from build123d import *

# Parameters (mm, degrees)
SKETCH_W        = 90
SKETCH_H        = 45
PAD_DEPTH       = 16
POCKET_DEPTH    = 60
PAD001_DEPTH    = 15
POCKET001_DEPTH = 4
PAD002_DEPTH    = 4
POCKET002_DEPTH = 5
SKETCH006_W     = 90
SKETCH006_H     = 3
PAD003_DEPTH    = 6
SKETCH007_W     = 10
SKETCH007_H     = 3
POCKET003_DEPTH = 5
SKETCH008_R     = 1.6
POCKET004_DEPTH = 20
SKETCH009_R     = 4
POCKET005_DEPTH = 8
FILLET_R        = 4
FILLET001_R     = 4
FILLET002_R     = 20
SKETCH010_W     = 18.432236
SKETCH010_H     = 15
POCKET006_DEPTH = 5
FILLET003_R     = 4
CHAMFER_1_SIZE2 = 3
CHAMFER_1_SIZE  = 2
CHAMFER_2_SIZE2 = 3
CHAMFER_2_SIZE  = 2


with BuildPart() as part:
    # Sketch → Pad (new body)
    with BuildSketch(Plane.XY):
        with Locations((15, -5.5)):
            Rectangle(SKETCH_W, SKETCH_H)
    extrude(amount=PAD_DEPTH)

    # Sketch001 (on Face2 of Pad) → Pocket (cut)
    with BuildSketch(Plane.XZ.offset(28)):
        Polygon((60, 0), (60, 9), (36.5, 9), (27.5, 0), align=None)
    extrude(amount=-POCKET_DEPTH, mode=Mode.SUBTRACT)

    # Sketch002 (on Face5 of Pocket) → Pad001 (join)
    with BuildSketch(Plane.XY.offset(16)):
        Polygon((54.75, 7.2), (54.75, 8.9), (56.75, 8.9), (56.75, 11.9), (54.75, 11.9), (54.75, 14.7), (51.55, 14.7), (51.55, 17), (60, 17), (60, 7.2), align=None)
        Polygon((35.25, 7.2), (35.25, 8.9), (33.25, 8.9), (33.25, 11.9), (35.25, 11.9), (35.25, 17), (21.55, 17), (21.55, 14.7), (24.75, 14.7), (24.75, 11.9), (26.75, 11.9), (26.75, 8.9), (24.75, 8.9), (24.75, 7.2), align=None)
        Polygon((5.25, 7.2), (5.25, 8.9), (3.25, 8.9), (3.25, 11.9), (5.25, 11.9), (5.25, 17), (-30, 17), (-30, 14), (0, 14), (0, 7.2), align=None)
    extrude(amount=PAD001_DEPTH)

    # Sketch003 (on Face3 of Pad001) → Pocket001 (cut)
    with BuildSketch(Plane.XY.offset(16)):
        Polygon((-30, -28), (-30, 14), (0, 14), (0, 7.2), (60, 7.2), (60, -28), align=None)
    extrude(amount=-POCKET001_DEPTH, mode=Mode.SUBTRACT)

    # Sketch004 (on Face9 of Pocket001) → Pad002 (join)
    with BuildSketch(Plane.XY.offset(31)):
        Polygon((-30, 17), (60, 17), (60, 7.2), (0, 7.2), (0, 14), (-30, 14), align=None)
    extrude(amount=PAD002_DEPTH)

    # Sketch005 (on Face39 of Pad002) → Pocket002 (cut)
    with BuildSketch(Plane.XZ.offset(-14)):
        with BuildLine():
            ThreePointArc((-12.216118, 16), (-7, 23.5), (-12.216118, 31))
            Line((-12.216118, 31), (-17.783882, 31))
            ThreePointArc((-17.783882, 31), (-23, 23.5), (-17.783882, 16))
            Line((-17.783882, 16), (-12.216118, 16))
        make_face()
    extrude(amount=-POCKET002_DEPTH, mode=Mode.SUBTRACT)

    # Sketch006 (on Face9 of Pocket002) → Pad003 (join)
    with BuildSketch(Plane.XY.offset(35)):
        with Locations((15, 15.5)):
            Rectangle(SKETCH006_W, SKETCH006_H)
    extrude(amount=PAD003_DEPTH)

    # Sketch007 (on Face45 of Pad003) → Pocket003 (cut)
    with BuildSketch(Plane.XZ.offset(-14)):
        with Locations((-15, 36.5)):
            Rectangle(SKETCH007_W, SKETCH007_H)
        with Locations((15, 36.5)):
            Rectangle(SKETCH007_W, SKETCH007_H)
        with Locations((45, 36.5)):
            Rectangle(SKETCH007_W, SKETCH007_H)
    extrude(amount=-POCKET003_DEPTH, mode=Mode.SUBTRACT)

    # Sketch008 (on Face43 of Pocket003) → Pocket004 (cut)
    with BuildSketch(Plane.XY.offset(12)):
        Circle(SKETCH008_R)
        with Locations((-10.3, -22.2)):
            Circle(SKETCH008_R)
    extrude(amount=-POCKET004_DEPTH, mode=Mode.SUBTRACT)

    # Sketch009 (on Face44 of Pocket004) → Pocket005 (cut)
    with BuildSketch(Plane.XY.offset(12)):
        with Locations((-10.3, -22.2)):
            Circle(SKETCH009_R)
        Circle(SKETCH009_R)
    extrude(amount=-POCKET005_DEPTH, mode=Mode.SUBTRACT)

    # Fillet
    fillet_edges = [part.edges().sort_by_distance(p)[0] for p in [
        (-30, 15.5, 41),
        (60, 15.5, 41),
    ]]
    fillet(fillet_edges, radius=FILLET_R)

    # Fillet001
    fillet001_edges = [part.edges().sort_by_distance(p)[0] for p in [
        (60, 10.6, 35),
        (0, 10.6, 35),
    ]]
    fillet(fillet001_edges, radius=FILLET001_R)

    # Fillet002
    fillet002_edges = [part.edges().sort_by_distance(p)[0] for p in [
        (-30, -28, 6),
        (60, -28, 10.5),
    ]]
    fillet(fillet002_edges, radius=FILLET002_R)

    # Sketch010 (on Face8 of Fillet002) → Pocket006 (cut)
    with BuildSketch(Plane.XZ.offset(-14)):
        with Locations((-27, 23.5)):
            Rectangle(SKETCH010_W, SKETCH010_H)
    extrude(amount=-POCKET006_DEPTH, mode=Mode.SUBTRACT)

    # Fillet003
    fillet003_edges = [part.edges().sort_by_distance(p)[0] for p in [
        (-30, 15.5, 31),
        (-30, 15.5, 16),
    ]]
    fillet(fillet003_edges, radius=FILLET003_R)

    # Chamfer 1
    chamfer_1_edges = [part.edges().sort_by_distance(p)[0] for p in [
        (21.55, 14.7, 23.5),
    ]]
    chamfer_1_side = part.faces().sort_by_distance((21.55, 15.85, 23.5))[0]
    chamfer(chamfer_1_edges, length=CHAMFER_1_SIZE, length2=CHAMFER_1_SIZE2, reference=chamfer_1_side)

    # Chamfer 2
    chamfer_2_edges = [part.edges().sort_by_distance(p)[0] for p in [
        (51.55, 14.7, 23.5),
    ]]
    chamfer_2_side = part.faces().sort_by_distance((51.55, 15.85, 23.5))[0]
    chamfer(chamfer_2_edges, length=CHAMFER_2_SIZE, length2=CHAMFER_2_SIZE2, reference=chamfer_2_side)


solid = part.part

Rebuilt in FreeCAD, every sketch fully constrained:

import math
import FreeCAD as App
import Part
import Sketcher

V = App.Vector
Q = App.Units.Quantity


def edges_at(feature, points):
    """Names of the edges that pass closest to the given points."""
    edges = feature.Shape.Edges
    near = lambda p: min(range(len(edges)), key=lambda i: edges[i].distToShape(Part.Vertex(*p))[0])
    return sorted({f"Edge{near(p) + 1}" for p in points})

doc = App.newDocument("Part")
params = doc.addObject("Spreadsheet::Sheet", "Params")
for row, (alias, value) in enumerate([
    ("sketch1_width", "90 mm"),
    ("sketch1_height", "45 mm"),
    ("pad1_length", "16 mm"),
    ("sketch2_height", "9 mm"),
    ("sketch2_width", "23.5 mm"),
    ("pocket1_length", "60 mm"),
    ("sketch3_width", "2 mm"),
    ("sketch3_width2", "30 mm"),
    ("sketch3_height", "3 mm"),
    ("sketch3_width3", "3.2 mm"),
    ("sketch3_width4", "13.7 mm"),
    ("pad2_length", "15 mm"),
    ("sketch4_width", "90 mm"),
    ("sketch4_width2", "60 mm"),
    ("sketch4_height", "42 mm"),
    ("sketch4_height2", "35.2 mm"),
    ("pocket2_length", "4 mm"),
    ("sketch5_width", "90 mm"),
    ("sketch5_width2", "30 mm"),
    ("sketch5_height", "3 mm"),
    ("sketch5_height2", "6.8 mm"),
    ("pad3_length", "4 mm"),
    ("sketch6_radius", "8 mm"),
    ("pocket3_length", "5 mm"),
    ("sketch7_width", "90 mm"),
    ("sketch7_height", "3 mm"),
    ("pad4_length", "6 mm"),
    ("sketch8_width", "10 mm"),
    ("sketch8_height", "3 mm"),
    ("pocket4_length", "5 mm"),
    ("sketch9_diameter", "3.2 mm"),
    ("pocket5_length", "20 mm"),
    ("sketch10_diameter", "8 mm"),
    ("pocket6_length", "8 mm"),
    ("fillet_radius", "4 mm"),
    ("fillet2_radius", "4 mm"),
    ("fillet3_radius", "20 mm"),
    ("sketch11_height", "15 mm"),
    ("pocket7_length", "5 mm"),
    ("fillet4_radius", "4 mm"),
    ("chamfer_size", "2 mm"),
    ("chamfer_size2", "3 mm"),
    ("chamfer2_size", "2 mm"),
    ("chamfer2_size2", "3 mm"),
], start=1):
    params.set(f"A{row}", alias)
    params.set(f"B{row}", "=" + value)
    params.setAlias(f"B{row}", alias)

body = doc.addObject("PartDesign::Body", "Body")

sketch1 = doc.addObject("Sketcher::SketchObject", "Sketch")
body.addObject(sketch1)
sketch1.AttachmentSupport = (doc.XY_Plane, [""])
sketch1.MapMode = "FlatFace"
sketch1.addGeometry([
    Part.LineSegment(V(-30, 17, 0), V(-30, -28, 0)),
    Part.LineSegment(V(-30, -28, 0), V(60, -28, 0)),
    Part.LineSegment(V(60, -28, 0), V(60, 17, 0)),
    Part.LineSegment(V(60, 17, 0), V(-30, 17, 0)),
], False)
sketch1.addConstraint([
    Sketcher.Constraint("Coincident", 0, 2, 1, 1),
    Sketcher.Constraint("Coincident", 1, 2, 2, 1),
    Sketcher.Constraint("Coincident", 2, 2, 3, 1),
    Sketcher.Constraint("Coincident", 3, 2, 0, 1),
    Sketcher.Constraint("Vertical", 0),
    Sketcher.Constraint("Horizontal", 1),
    Sketcher.Constraint("Vertical", 2),
    Sketcher.Constraint("Horizontal", 3),
    Sketcher.Constraint("DistanceX", 1, 1, 1, 2, Q("90 mm")),
    Sketcher.Constraint("DistanceY", 0, 2, 0, 1, Q("45 mm")),
    Sketcher.Constraint("DistanceX", 0, 2, -1, 1, Q("30 mm")),
    Sketcher.Constraint("DistanceY", 0, 2, -1, 1, Q("28 mm")),
])
sketch1.setExpression("Constraints[8]", "Params.sketch1_width")
sketch1.setExpression("Constraints[9]", "Params.sketch1_height")
pad1 = doc.addObject("PartDesign::Pad", "Pad")
body.addObject(pad1)
pad1.Profile = sketch1
pad1.setExpression("Length", "Params.pad1_length")

sketch2 = doc.addObject("Sketcher::SketchObject", "Sketch001")
body.addObject(sketch2)
sketch2.AttachmentSupport = (doc.XZ_Plane, [""])
sketch2.MapMode = "FlatFace"
sketch2.AttachmentOffset = App.Placement(V(0, 0, 28), App.Rotation())
sketch2.addGeometry([
    Part.LineSegment(V(60, 0, 0), V(60, 9, 0)),
    Part.LineSegment(V(60, 9, 0), V(36, 9, 0)),
    Part.LineSegment(V(36, 9, 0), V(28, 0, 0)),
    Part.LineSegment(V(28, 0, 0), V(60, 0, 0)),
], False)
sketch2.addConstraint([
    Sketcher.Constraint("Coincident", 0, 2, 1, 1),
    Sketcher.Constraint("Coincident", 1, 2, 2, 1),
    Sketcher.Constraint("Coincident", 2, 2, 3, 1),
    Sketcher.Constraint("Coincident", 3, 2, 0, 1),
    Sketcher.Constraint("Vertical", 0),
    Sketcher.Constraint("Horizontal", 1),
    Sketcher.Constraint("Horizontal", 3),
    Sketcher.Constraint("PointOnObject", 2, 2, -1),
    Sketcher.Constraint("DistanceY", 0, 1, 0, 2, Q("9 mm")),
    Sketcher.Constraint("Angle", 2, Q("-135 deg")),
    Sketcher.Constraint("DistanceX", 1, 2, 1, 1, Q("23.5 mm")),
    Sketcher.Constraint("DistanceX", -1, 1, 0, 2, Q("60 mm")),
])
sketch2.setExpression("Constraints[8]", "Params.sketch2_height")
sketch2.setExpression("Constraints[10]", "Params.sketch2_width")
pocket1 = doc.addObject("PartDesign::Pocket", "Pocket")
body.addObject(pocket1)
pocket1.Profile = sketch2
pocket1.setExpression("Length", "Params.pocket1_length")

sketch3 = doc.addObject("Sketcher::SketchObject", "Sketch002")
body.addObject(sketch3)
sketch3.AttachmentSupport = (doc.XY_Plane, [""])
sketch3.MapMode = "FlatFace"
sketch3.AttachmentOffset = App.Placement(V(0, 0, 16), App.Rotation())
sketch3.addGeometry([
    Part.LineSegment(V(54.8, 8.9, 0), V(54.8, 7.2, 0)),
    Part.LineSegment(V(54.8, 7.2, 0), V(60, 7.2, 0)),
    Part.LineSegment(V(60, 7.2, 0), V(60, 17, 0)),
    Part.LineSegment(V(60, 17, 0), V(51.5, 17, 0)),
    Part.LineSegment(V(51.5, 17, 0), V(51.5, 14.7, 0)),
    Part.LineSegment(V(51.5, 14.7, 0), V(54.8, 14.7, 0)),
    Part.LineSegment(V(54.8, 14.7, 0), V(54.8, 11.9, 0)),
    Part.LineSegment(V(54.8, 11.9, 0), V(56.8, 11.9, 0)),
    Part.LineSegment(V(56.8, 11.9, 0), V(56.8, 8.9, 0)),
    Part.LineSegment(V(56.8, 8.9, 0), V(54.8, 8.9, 0)),
    Part.LineSegment(V(35.2, 7.2, 0), V(35.2, 8.9, 0)),
    Part.LineSegment(V(35.2, 8.9, 0), V(33.2, 8.9, 0)),
    Part.LineSegment(V(33.2, 8.9, 0), V(33.2, 11.9, 0)),
    Part.LineSegment(V(33.2, 11.9, 0), V(35.2, 11.9, 0)),
    Part.LineSegment(V(35.2, 11.9, 0), V(35.2, 17, 0)),
    Part.LineSegment(V(35.2, 17, 0), V(21.6, 17, 0)),
    Part.LineSegment(V(21.6, 17, 0), V(21.6, 14.7, 0)),
    Part.LineSegment(V(21.6, 14.7, 0), V(24.8, 14.7, 0)),
    Part.LineSegment(V(24.8, 14.7, 0), V(24.8, 11.9, 0)),
    Part.LineSegment(V(24.8, 11.9, 0), V(26.8, 11.9, 0)),
    Part.LineSegment(V(26.8, 11.9, 0), V(26.8, 8.9, 0)),
    Part.LineSegment(V(26.8, 8.9, 0), V(24.8, 8.9, 0)),
    Part.LineSegment(V(24.8, 8.9, 0), V(24.8, 7.2, 0)),
    Part.LineSegment(V(24.8, 7.2, 0), V(35.2, 7.2, 0)),
    Part.LineSegment(V(5.2, 7.2, 0), V(5.2, 8.9, 0)),
    Part.LineSegment(V(5.2, 8.9, 0), V(3.2, 8.9, 0)),
    Part.LineSegment(V(3.2, 8.9, 0), V(3.2, 11.9, 0)),
    Part.LineSegment(V(3.2, 11.9, 0), V(5.2, 11.9, 0)),
    Part.LineSegment(V(5.2, 11.9, 0), V(5.2, 17, 0)),
    Part.LineSegment(V(5.2, 17, 0), V(-30, 17, 0)),
    Part.LineSegment(V(-30, 17, 0), V(-30, 14, 0)),
    Part.LineSegment(V(-30, 14, 0), V(0, 14, 0)),
    Part.LineSegment(V(0, 14, 0), V(0, 7.2, 0)),
    Part.LineSegment(V(0, 7.2, 0), V(5.2, 7.2, 0)),
], False)
sketch3.addConstraint([
    Sketcher.Constraint("Coincident", 0, 2, 1, 1),
    Sketcher.Constraint("Coincident", 1, 2, 2, 1),
    Sketcher.Constraint("Coincident", 2, 2, 3, 1),
    Sketcher.Constraint("Coincident", 3, 2, 4, 1),
    Sketcher.Constraint("Coincident", 4, 2, 5, 1),
    Sketcher.Constraint("Coincident", 5, 2, 6, 1),
    Sketcher.Constraint("Coincident", 6, 2, 7, 1),
    Sketcher.Constraint("Coincident", 7, 2, 8, 1),
    Sketcher.Constraint("Coincident", 8, 2, 9, 1),
    Sketcher.Constraint("Coincident", 9, 2, 0, 1),
    Sketcher.Constraint("Coincident", 10, 2, 11, 1),
    Sketcher.Constraint("Coincident", 11, 2, 12, 1),
    Sketcher.Constraint("Coincident", 12, 2, 13, 1),
    Sketcher.Constraint("Coincident", 13, 2, 14, 1),
    Sketcher.Constraint("Coincident", 14, 2, 15, 1),
    Sketcher.Constraint("Coincident", 15, 2, 16, 1),
    Sketcher.Constraint("Coincident", 16, 2, 17, 1),
    Sketcher.Constraint("Coincident", 17, 2, 18, 1),
    Sketcher.Constraint("Coincident", 18, 2, 19, 1),
    Sketcher.Constraint("Coincident", 19, 2, 20, 1),
    Sketcher.Constraint("Coincident", 20, 2, 21, 1),
    Sketcher.Constraint("Coincident", 21, 2, 22, 1),
    Sketcher.Constraint("Coincident", 22, 2, 23, 1),
    Sketcher.Constraint("Coincident", 23, 2, 10, 1),
    Sketcher.Constraint("Coincident", 24, 2, 25, 1),
    Sketcher.Constraint("Coincident", 25, 2, 26, 1),
    Sketcher.Constraint("Coincident", 26, 2, 27, 1),
    Sketcher.Constraint("Coincident", 27, 2, 28, 1),
    Sketcher.Constraint("Coincident", 28, 2, 29, 1),
    Sketcher.Constraint("Coincident", 29, 2, 30, 1),
    Sketcher.Constraint("Coincident", 30, 2, 31, 1),
    Sketcher.Constraint("Coincident", 31, 2, 32, 1),
    Sketcher.Constraint("Coincident", 32, 2, 33, 1),
    Sketcher.Constraint("Coincident", 33, 2, 24, 1),
    Sketcher.Constraint("Vertical", 0),
    Sketcher.Constraint("Horizontal", 1),
    Sketcher.Constraint("Vertical", 2),
    Sketcher.Constraint("Horizontal", 3),
    Sketcher.Constraint("Vertical", 4),
    Sketcher.Constraint("Horizontal", 5),
    Sketcher.Constraint("Vertical", 6),
    Sketcher.Constraint("Horizontal", 7),
    Sketcher.Constraint("Vertical", 8),
    Sketcher.Constraint("Horizontal", 9),
    Sketcher.Constraint("Vertical", 10),
    Sketcher.Constraint("Horizontal", 11),
    Sketcher.Constraint("Vertical", 12),
    Sketcher.Constraint("Horizontal", 13),
    Sketcher.Constraint("Vertical", 14),
    Sketcher.Constraint("Horizontal", 15),
    Sketcher.Constraint("Vertical", 16),
    Sketcher.Constraint("Horizontal", 17),
    Sketcher.Constraint("Vertical", 18),
    Sketcher.Constraint("Horizontal", 19),
    Sketcher.Constraint("Vertical", 20),
    Sketcher.Constraint("Horizontal", 21),
    Sketcher.Constraint("Vertical", 22),
    Sketcher.Constraint("Horizontal", 23),
    Sketcher.Constraint("Vertical", 24),
    Sketcher.Constraint("Horizontal", 25),
    Sketcher.Constraint("Vertical", 26),
    Sketcher.Constraint("Horizontal", 27),
    Sketcher.Constraint("Vertical", 28),
    Sketcher.Constraint("Horizontal", 29),
    Sketcher.Constraint("Vertical", 30),
    Sketcher.Constraint("Horizontal", 31),
    Sketcher.Constraint("Vertical", 32),
    Sketcher.Constraint("Horizontal", 33),
    Sketcher.Constraint("PointOnObject", 31, 2, -2),
    Sketcher.Constraint("Horizontal", 9, 2, 10, 2),
    Sketcher.Constraint("Horizontal", 7, 2, 12, 2),
    Sketcher.Constraint("Horizontal", 3, 2, 14, 2),
    Sketcher.Constraint("Horizontal", 5, 2, 16, 2),
    Sketcher.Constraint("Horizontal", 13, 2, 18, 2),
    Sketcher.Constraint("Horizontal", 11, 2, 20, 2),
    Sketcher.Constraint("Horizontal", 1, 2, 22, 2),
    Sketcher.Constraint("Horizontal", 21, 2, 24, 2),
    Sketcher.Constraint("Horizontal", 19, 2, 26, 2),
    Sketcher.Constraint("Horizontal", 15, 2, 28, 2),
    Sketcher.Constraint("Horizontal", 23, 2, 32, 2),
    Sketcher.Constraint("Vertical", 0, 2, 5, 2),
    Sketcher.Constraint("Vertical", 10, 2, 13, 2),
    Sketcher.Constraint("Vertical", 18, 2, 21, 2),
    Sketcher.Constraint("Vertical", 24, 2, 27, 2),
    Sketcher.Constraint("Equal", 9, 11),
    Sketcher.Constraint("Equal", 5, 17),
    Sketcher.Constraint("Equal", 13, 19),
    Sketcher.Constraint("Equal", 21, 25),
    Sketcher.Constraint("Equal", 1, 33),
    Sketcher.Constraint("Equal", 26, 30),
    Sketcher.Constraint("DistanceX", 7, 1, 7, 2, Q("2 mm")),
    Sketcher.Constraint("DistanceX", 31, 1, 31, 2, Q("30 mm")),
    Sketcher.Constraint("DistanceY", 8, 2, 8, 1, Q("3 mm")),
    Sketcher.Constraint("DistanceX", 5, 1, 5, 2, Q("3.2 mm")),
    Sketcher.Constraint("DistanceX", 15, 2, 15, 1, Q("13.7 mm")),
    Sketcher.Constraint("DistanceY", 0, 2, 0, 1, Q("1.7 mm")),
    Sketcher.Constraint("DistanceY", 2, 1, 2, 2, Q("9.8 mm")),
    Sketcher.Constraint("DistanceY", 4, 2, 4, 1, Q("2.3 mm")),
    Sketcher.Constraint("DistanceX", -1, 1, 1, 2, Q("60 mm")),
    Sketcher.Constraint("DistanceY", -1, 1, 2, 2, Q("17 mm")),
    Sketcher.Constraint("DistanceX", 1, 1, 1, 2, Q("5.25 mm")),
    Sketcher.Constraint("DistanceX", 10, 2, 4, 2, Q("16.3 mm")),
])
sketch3.setExpression("Constraints[90]", "Params.sketch3_width")
sketch3.setExpression("Constraints[91]", "Params.sketch3_width2")
sketch3.setExpression("Constraints[92]", "Params.sketch3_height")
sketch3.setExpression("Constraints[93]", "Params.sketch3_width3")
sketch3.setExpression("Constraints[94]", "Params.sketch3_width4")
pad2 = doc.addObject("PartDesign::Pad", "Pad001")
body.addObject(pad2)
pad2.Profile = sketch3
pad2.setExpression("Length", "Params.pad2_length")

sketch4 = doc.addObject("Sketcher::SketchObject", "Sketch003")
body.addObject(sketch4)
sketch4.AttachmentSupport = (doc.XY_Plane, [""])
sketch4.MapMode = "FlatFace"
sketch4.AttachmentOffset = App.Placement(V(0, 0, 16), App.Rotation())
sketch4.addGeometry([
    Part.LineSegment(V(-30, 14, 0), V(-30, -28, 0)),
    Part.LineSegment(V(-30, -28, 0), V(60, -28, 0)),
    Part.LineSegment(V(60, -28, 0), V(60, 7, 0)),
    Part.LineSegment(V(60, 7, 0), V(0, 7, 0)),
    Part.LineSegment(V(0, 7, 0), V(0, 14, 0)),
    Part.LineSegment(V(0, 14, 0), V(-30, 14, 0)),
], False)
sketch4.addConstraint([
    Sketcher.Constraint("Coincident", 0, 2, 1, 1),
    Sketcher.Constraint("Coincident", 1, 2, 2, 1),
    Sketcher.Constraint("Coincident", 2, 2, 3, 1),
    Sketcher.Constraint("Coincident", 3, 2, 4, 1),
    Sketcher.Constraint("Coincident", 4, 2, 5, 1),
    Sketcher.Constraint("Coincident", 5, 2, 0, 1),
    Sketcher.Constraint("Vertical", 0),
    Sketcher.Constraint("Horizontal", 1),
    Sketcher.Constraint("Vertical", 2),
    Sketcher.Constraint("Horizontal", 3),
    Sketcher.Constraint("Vertical", 4),
    Sketcher.Constraint("Horizontal", 5),
    Sketcher.Constraint("PointOnObject", 3, 2, -2),
    Sketcher.Constraint("DistanceX", 1, 1, 1, 2, Q("90 mm")),
    Sketcher.Constraint("DistanceX", 3, 2, 3, 1, Q("60 mm")),
    Sketcher.Constraint("DistanceY", 0, 2, 0, 1, Q("42 mm")),
    Sketcher.Constraint("DistanceY", 2, 1, 2, 2, Q("35.2 mm")),
    Sketcher.Constraint("DistanceY", 0, 2, -1, 1, Q("28 mm")),
])
sketch4.setExpression("Constraints[13]", "Params.sketch4_width")
sketch4.setExpression("Constraints[14]", "Params.sketch4_width2")
sketch4.setExpression("Constraints[15]", "Params.sketch4_height")
sketch4.setExpression("Constraints[16]", "Params.sketch4_height2")
pocket2 = doc.addObject("PartDesign::Pocket", "Pocket001")
body.addObject(pocket2)
pocket2.Profile = sketch4
pocket2.setExpression("Length", "Params.pocket2_length")

sketch5 = doc.addObject("Sketcher::SketchObject", "Sketch004")
body.addObject(sketch5)
sketch5.AttachmentSupport = (doc.XY_Plane, [""])
sketch5.MapMode = "FlatFace"
sketch5.AttachmentOffset = App.Placement(V(0, 0, 31), App.Rotation())
sketch5.addGeometry([
    Part.LineSegment(V(60, 17, 0), V(-30, 17, 0)),
    Part.LineSegment(V(-30, 17, 0), V(-30, 14, 0)),
    Part.LineSegment(V(-30, 14, 0), V(0, 14, 0)),
    Part.LineSegment(V(0, 14, 0), V(0, 7.2, 0)),
    Part.LineSegment(V(0, 7.2, 0), V(60, 7.2, 0)),
    Part.LineSegment(V(60, 7.2, 0), V(60, 17, 0)),
], False)
sketch5.addConstraint([
    Sketcher.Constraint("Coincident", 0, 2, 1, 1),
    Sketcher.Constraint("Coincident", 1, 2, 2, 1),
    Sketcher.Constraint("Coincident", 2, 2, 3, 1),
    Sketcher.Constraint("Coincident", 3, 2, 4, 1),
    Sketcher.Constraint("Coincident", 4, 2, 5, 1),
    Sketcher.Constraint("Coincident", 5, 2, 0, 1),
    Sketcher.Constraint("Horizontal", 0),
    Sketcher.Constraint("Vertical", 1),
    Sketcher.Constraint("Horizontal", 2),
    Sketcher.Constraint("Vertical", 3),
    Sketcher.Constraint("Horizontal", 4),
    Sketcher.Constraint("Vertical", 5),
    Sketcher.Constraint("PointOnObject", 2, 2, -2),
    Sketcher.Constraint("DistanceX", 0, 2, 0, 1, Q("90 mm")),
    Sketcher.Constraint("DistanceX", 2, 1, 2, 2, Q("30 mm")),
    Sketcher.Constraint("DistanceY", 1, 2, 1, 1, Q("3 mm")),
    Sketcher.Constraint("DistanceY", 3, 2, 3, 1, Q("6.8 mm")),
    Sketcher.Constraint("DistanceY", -1, 1, 0, 2, Q("17 mm")),
])
sketch5.setExpression("Constraints[13]", "Params.sketch5_width")
sketch5.setExpression("Constraints[14]", "Params.sketch5_width2")
sketch5.setExpression("Constraints[15]", "Params.sketch5_height")
sketch5.setExpression("Constraints[16]", "Params.sketch5_height2")
pad3 = doc.addObject("PartDesign::Pad", "Pad002")
body.addObject(pad3)
pad3.Profile = sketch5
pad3.setExpression("Length", "Params.pad3_length")

sketch6 = doc.addObject("Sketcher::SketchObject", "Sketch005")
body.addObject(sketch6)
sketch6.AttachmentSupport = (doc.XZ_Plane, [""])
sketch6.MapMode = "FlatFace"
sketch6.AttachmentOffset = App.Placement(V(0, 0, -14), App.Rotation())
sketch6.addGeometry([
    Part.ArcOfCircle(Part.Circle(V(-15, 24, 0), V(0, 0, 1), 8), math.radians(-70), math.radians(70)),
    Part.LineSegment(V(-12, 31, 0), V(-18, 31, 0)),
    Part.ArcOfCircle(Part.Circle(V(-15, 24, 0), V(0, 0, 1), 8), math.radians(110), math.radians(250)),
    Part.LineSegment(V(-18, 16, 0), V(-12, 16, 0)),
], False)
sketch6.addConstraint([
    Sketcher.Constraint("Coincident", 0, 2, 1, 1),
    Sketcher.Constraint("Coincident", 1, 2, 2, 1),
    Sketcher.Constraint("Coincident", 2, 2, 3, 1),
    Sketcher.Constraint("Coincident", 3, 2, 0, 1),
    Sketcher.Constraint("Horizontal", 1),
    Sketcher.Constraint("Horizontal", 3),
    Sketcher.Constraint("Coincident", 2, 3, 0, 3),
    Sketcher.Constraint("Equal", 0, 2),
    Sketcher.Constraint("Vertical", 1, 2, 2, 2),
    Sketcher.Constraint("Radius", 0, Q("8 mm")),
    Sketcher.Constraint("DistanceX", 0, 3, -1, 1, Q("15 mm")),
    Sketcher.Constraint("DistanceY", -1, 1, 0, 2, Q("31 mm")),
    Sketcher.Constraint("DistanceY", -1, 1, 2, 2, Q("16 mm")),
])
sketch6.setExpression("Constraints[9]", "Params.sketch6_radius")
pocket3 = doc.addObject("PartDesign::Pocket", "Pocket002")
body.addObject(pocket3)
pocket3.Profile = sketch6
pocket3.setExpression("Length", "Params.pocket3_length")

sketch7 = doc.addObject("Sketcher::SketchObject", "Sketch006")
body.addObject(sketch7)
sketch7.AttachmentSupport = (doc.XY_Plane, [""])
sketch7.MapMode = "FlatFace"
sketch7.AttachmentOffset = App.Placement(V(0, 0, 35), App.Rotation())
sketch7.addGeometry([
    Part.LineSegment(V(-30, 17, 0), V(-30, 14, 0)),
    Part.LineSegment(V(-30, 14, 0), V(60, 14, 0)),
    Part.LineSegment(V(60, 14, 0), V(60, 17, 0)),
    Part.LineSegment(V(60, 17, 0), V(-30, 17, 0)),
], False)
sketch7.addConstraint([
    Sketcher.Constraint("Coincident", 0, 2, 1, 1),
    Sketcher.Constraint("Coincident", 1, 2, 2, 1),
    Sketcher.Constraint("Coincident", 2, 2, 3, 1),
    Sketcher.Constraint("Coincident", 3, 2, 0, 1),
    Sketcher.Constraint("Vertical", 0),
    Sketcher.Constraint("Horizontal", 1),
    Sketcher.Constraint("Vertical", 2),
    Sketcher.Constraint("Horizontal", 3),
    Sketcher.Constraint("DistanceX", 1, 1, 1, 2, Q("90 mm")),
    Sketcher.Constraint("DistanceY", 0, 2, 0, 1, Q("3 mm")),
    Sketcher.Constraint("DistanceX", 0, 2, -1, 1, Q("30 mm")),
    Sketcher.Constraint("DistanceY", -1, 1, 0, 2, Q("14 mm")),
])
sketch7.setExpression("Constraints[8]", "Params.sketch7_width")
sketch7.setExpression("Constraints[9]", "Params.sketch7_height")
pad4 = doc.addObject("PartDesign::Pad", "Pad003")
body.addObject(pad4)
pad4.Profile = sketch7
pad4.setExpression("Length", "Params.pad4_length")

sketch8 = doc.addObject("Sketcher::SketchObject", "Sketch007")
body.addObject(sketch8)
sketch8.AttachmentSupport = (doc.XZ_Plane, [""])
sketch8.MapMode = "FlatFace"
sketch8.AttachmentOffset = App.Placement(V(0, 0, -14), App.Rotation())
sketch8.addGeometry([
    Part.LineSegment(V(-20, 38, 0), V(-20, 35, 0)),
    Part.LineSegment(V(-20, 35, 0), V(-10, 35, 0)),
    Part.LineSegment(V(-10, 35, 0), V(-10, 38, 0)),
    Part.LineSegment(V(-10, 38, 0), V(-20, 38, 0)),
    Part.LineSegment(V(10, 38, 0), V(10, 35, 0)),
    Part.LineSegment(V(10, 35, 0), V(20, 35, 0)),
    Part.LineSegment(V(20, 35, 0), V(20, 38, 0)),
    Part.LineSegment(V(20, 38, 0), V(10, 38, 0)),
    Part.LineSegment(V(40, 38, 0), V(40, 35, 0)),
    Part.LineSegment(V(40, 35, 0), V(50, 35, 0)),
    Part.LineSegment(V(50, 35, 0), V(50, 38, 0)),
    Part.LineSegment(V(50, 38, 0), V(40, 38, 0)),
], False)
sketch8.addConstraint([
    Sketcher.Constraint("Coincident", 0, 2, 1, 1),
    Sketcher.Constraint("Coincident", 1, 2, 2, 1),
    Sketcher.Constraint("Coincident", 2, 2, 3, 1),
    Sketcher.Constraint("Coincident", 3, 2, 0, 1),
    Sketcher.Constraint("Coincident", 4, 2, 5, 1),
    Sketcher.Constraint("Coincident", 5, 2, 6, 1),
    Sketcher.Constraint("Coincident", 6, 2, 7, 1),
    Sketcher.Constraint("Coincident", 7, 2, 4, 1),
    Sketcher.Constraint("Coincident", 8, 2, 9, 1),
    Sketcher.Constraint("Coincident", 9, 2, 10, 1),
    Sketcher.Constraint("Coincident", 10, 2, 11, 1),
    Sketcher.Constraint("Coincident", 11, 2, 8, 1),
    Sketcher.Constraint("Vertical", 0),
    Sketcher.Constraint("Horizontal", 1),
    Sketcher.Constraint("Vertical", 2),
    Sketcher.Constraint("Horizontal", 3),
    Sketcher.Constraint("Vertical", 4),
    Sketcher.Constraint("Horizontal", 5),
    Sketcher.Constraint("Vertical", 6),
    Sketcher.Constraint("Horizontal", 7),
    Sketcher.Constraint("Vertical", 8),
    Sketcher.Constraint("Horizontal", 9),
    Sketcher.Constraint("Vertical", 10),
    Sketcher.Constraint("Horizontal", 11),
    Sketcher.Constraint("Symmetric", 1, 2, 4, 2, -2),
    Sketcher.Constraint("Symmetric", 3, 2, 6, 2, -2),
    Sketcher.Constraint("Horizontal", 5, 2, 8, 2),
    Sketcher.Constraint("Horizontal", 7, 2, 10, 2),
    Sketcher.Constraint("Equal", 7, 9),
    Sketcher.Constraint("DistanceX", 1, 1, 1, 2, Q("10 mm")),
    Sketcher.Constraint("DistanceY", 0, 2, 0, 1, Q("3 mm")),
    Sketcher.Constraint("DistanceX", 0, 2, -1, 1, Q("20 mm")),
    Sketcher.Constraint("DistanceY", -1, 1, 0, 2, Q("35 mm")),
    Sketcher.Constraint("DistanceX", -1, 1, 8, 2, Q("40 mm")),
])
sketch8.setExpression("Constraints[29]", "Params.sketch8_width")
sketch8.setExpression("Constraints[30]", "Params.sketch8_height")
pocket4 = doc.addObject("PartDesign::Pocket", "Pocket003")
body.addObject(pocket4)
pocket4.Profile = sketch8
pocket4.setExpression("Length", "Params.pocket4_length")

sketch9 = doc.addObject("Sketcher::SketchObject", "Sketch008")
body.addObject(sketch9)
sketch9.AttachmentSupport = (doc.XY_Plane, [""])
sketch9.MapMode = "FlatFace"
sketch9.AttachmentOffset = App.Placement(V(0, 0, 12), App.Rotation())
sketch9.addGeometry([
    Part.Circle(V(0, 0, 0), V(0, 0, 1), 1.6),
    Part.Circle(V(-10.3, -22.2, 0), V(0, 0, 1), 1.6),
], False)
sketch9.addConstraint([
    Sketcher.Constraint("Coincident", 0, 3, -1, 1),
    Sketcher.Constraint("Equal", 0, 1),
    Sketcher.Constraint("Diameter", 0, Q("3.2 mm")),
    Sketcher.Constraint("DistanceX", 1, 3, -1, 1, Q("10.3 mm")),
    Sketcher.Constraint("DistanceY", 1, 3, -1, 1, Q("22.2 mm")),
])
sketch9.setExpression("Constraints[2]", "Params.sketch9_diameter")
pocket5 = doc.addObject("PartDesign::Pocket", "Pocket004")
body.addObject(pocket5)
pocket5.Profile = sketch9
pocket5.setExpression("Length", "Params.pocket5_length")

sketch10 = doc.addObject("Sketcher::SketchObject", "Sketch009")
body.addObject(sketch10)
sketch10.AttachmentSupport = (doc.XY_Plane, [""])
sketch10.MapMode = "FlatFace"
sketch10.AttachmentOffset = App.Placement(V(0, 0, 12), App.Rotation())
sketch10.addGeometry([
    Part.Circle(V(-10.3, -22.2, 0), V(0, 0, 1), 4),
    Part.Circle(V(0, 0, 0), V(0, 0, 1), 4),
], False)
sketch10.addConstraint([
    Sketcher.Constraint("Coincident", 1, 3, -1, 1),
    Sketcher.Constraint("Equal", 0, 1),
    Sketcher.Constraint("Diameter", 0, Q("8 mm")),
    Sketcher.Constraint("DistanceX", 0, 3, -1, 1, Q("10.3 mm")),
    Sketcher.Constraint("DistanceY", 0, 3, -1, 1, Q("22.2 mm")),
])
sketch10.setExpression("Constraints[2]", "Params.sketch10_diameter")
pocket6 = doc.addObject("PartDesign::Pocket", "Pocket005")
body.addObject(pocket6)
pocket6.Profile = sketch10
pocket6.setExpression("Length", "Params.pocket6_length")
doc.recompute()

fillet = doc.addObject("PartDesign::Fillet", "Fillet")
body.addObject(fillet)
fillet.Base = (pocket6, edges_at(pocket6, [(-30, 15.5, 41), (60, 15.5, 41)]))
fillet.setExpression("Radius", "Params.fillet_radius")
doc.recompute()

fillet2 = doc.addObject("PartDesign::Fillet", "Fillet001")
body.addObject(fillet2)
fillet2.Base = (fillet, edges_at(fillet, [(60, 10.6, 35), (0, 10.6, 35)]))
fillet2.setExpression("Radius", "Params.fillet2_radius")
doc.recompute()

fillet3 = doc.addObject("PartDesign::Fillet", "Fillet002")
body.addObject(fillet3)
fillet3.Base = (fillet2, edges_at(fillet2, [(-30, -28, 6), (60, -28, 10.5)]))
fillet3.setExpression("Radius", "Params.fillet3_radius")

sketch11 = doc.addObject("Sketcher::SketchObject", "Sketch010")
body.addObject(sketch11)
sketch11.AttachmentSupport = (doc.XZ_Plane, [""])
sketch11.MapMode = "FlatFace"
sketch11.AttachmentOffset = App.Placement(V(0, 0, -14), App.Rotation())
sketch11.addGeometry([
    Part.LineSegment(V(-36, 31, 0), V(-36, 16, 0)),
    Part.LineSegment(V(-36, 16, 0), V(-18, 16, 0)),
    Part.LineSegment(V(-18, 16, 0), V(-18, 31, 0)),
    Part.LineSegment(V(-18, 31, 0), V(-36, 31, 0)),
], False)
sketch11.addConstraint([
    Sketcher.Constraint("Coincident", 0, 2, 1, 1),
    Sketcher.Constraint("Coincident", 1, 2, 2, 1),
    Sketcher.Constraint("Coincident", 2, 2, 3, 1),
    Sketcher.Constraint("Coincident", 3, 2, 0, 1),
    Sketcher.Constraint("Vertical", 0),
    Sketcher.Constraint("Horizontal", 1),
    Sketcher.Constraint("Vertical", 2),
    Sketcher.Constraint("Horizontal", 3),
    Sketcher.Constraint("DistanceY", 0, 2, 0, 1, Q("15 mm")),
    Sketcher.Constraint("DistanceY", -1, 1, 0, 2, Q("16 mm")),
    Sketcher.Constraint("DistanceX", 1, 1, 1, 2, Q("18.432236 mm")),
    Sketcher.Constraint("DistanceX", 0, 2, -1, 1, Q("36.216118 mm")),
])
sketch11.setExpression("Constraints[8]", "Params.sketch11_height")
pocket7 = doc.addObject("PartDesign::Pocket", "Pocket006")
body.addObject(pocket7)
pocket7.Profile = sketch11
pocket7.setExpression("Length", "Params.pocket7_length")
doc.recompute()

fillet4 = doc.addObject("PartDesign::Fillet", "Fillet003")
body.addObject(fillet4)
fillet4.Base = (pocket7, edges_at(pocket7, [(-30, 15.5, 31), (-30, 15.5, 16)]))
fillet4.setExpression("Radius", "Params.fillet4_radius")
doc.recompute()

chamfer = doc.addObject("PartDesign::Chamfer", "Chamfer")
body.addObject(chamfer)
chamfer.Base = (fillet4, edges_at(fillet4, [(21.55, 14.7, 23.5)]))
chamfer.ChamferType = "Two distances"
chamfer.setExpression("Size", "Params.chamfer_size")
chamfer.setExpression("Size2", "Params.chamfer_size2")
doc.recompute()

chamfer2 = doc.addObject("PartDesign::Chamfer", "Chamfer001")
body.addObject(chamfer2)
chamfer2.Base = (chamfer, edges_at(chamfer, [(51.55, 14.7, 23.5)]))
chamfer2.ChamferType = "Two distances"
chamfer2.setExpression("Size", "Params.chamfer2_size")
chamfer2.setExpression("Size2", "Params.chamfer2_size2")

doc.recompute()
